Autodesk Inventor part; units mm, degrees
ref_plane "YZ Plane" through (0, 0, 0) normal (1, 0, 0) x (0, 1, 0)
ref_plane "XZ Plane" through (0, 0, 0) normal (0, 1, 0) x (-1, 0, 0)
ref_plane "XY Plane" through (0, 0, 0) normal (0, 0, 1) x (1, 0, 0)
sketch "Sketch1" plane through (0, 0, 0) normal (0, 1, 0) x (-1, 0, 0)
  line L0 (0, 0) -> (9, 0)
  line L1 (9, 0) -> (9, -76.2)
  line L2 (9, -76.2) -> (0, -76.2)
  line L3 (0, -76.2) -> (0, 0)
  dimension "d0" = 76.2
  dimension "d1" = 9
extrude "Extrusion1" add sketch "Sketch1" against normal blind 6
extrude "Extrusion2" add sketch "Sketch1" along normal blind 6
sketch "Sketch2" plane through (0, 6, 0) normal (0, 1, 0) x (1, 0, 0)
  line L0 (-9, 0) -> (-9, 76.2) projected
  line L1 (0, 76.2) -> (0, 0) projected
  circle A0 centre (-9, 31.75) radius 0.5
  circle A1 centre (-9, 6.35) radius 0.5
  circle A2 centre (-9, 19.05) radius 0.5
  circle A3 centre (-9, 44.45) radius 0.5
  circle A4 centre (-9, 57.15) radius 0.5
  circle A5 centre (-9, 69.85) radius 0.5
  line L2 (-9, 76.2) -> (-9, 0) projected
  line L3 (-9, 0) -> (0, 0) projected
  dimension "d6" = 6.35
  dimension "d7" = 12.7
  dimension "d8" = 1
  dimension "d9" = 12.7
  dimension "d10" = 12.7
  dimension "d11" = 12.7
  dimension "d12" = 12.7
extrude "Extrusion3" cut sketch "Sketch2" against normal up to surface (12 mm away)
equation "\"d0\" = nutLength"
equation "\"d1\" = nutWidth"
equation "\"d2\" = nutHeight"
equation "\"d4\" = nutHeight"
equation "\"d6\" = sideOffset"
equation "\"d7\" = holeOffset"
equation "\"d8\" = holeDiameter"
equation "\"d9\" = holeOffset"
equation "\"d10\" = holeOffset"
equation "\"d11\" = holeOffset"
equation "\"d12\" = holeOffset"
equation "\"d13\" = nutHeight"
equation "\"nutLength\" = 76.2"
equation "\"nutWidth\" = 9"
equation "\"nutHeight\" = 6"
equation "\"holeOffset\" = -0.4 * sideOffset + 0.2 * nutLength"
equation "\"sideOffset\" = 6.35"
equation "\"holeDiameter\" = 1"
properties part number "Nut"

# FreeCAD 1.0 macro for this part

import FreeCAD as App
import Part
import Sketcher

V = App.Vector

doc = App.newDocument("Part")
body = doc.addObject("PartDesign::Body", "Body")

sketch1 = body.newObject("Sketcher::SketchObject", "Sketch")
sketch1.AttachmentSupport = (doc.getObject("XZ_Plane"), [""])
sketch1.MapMode = "FlatFace"
sketch1.addGeometry([
    Part.LineSegment(V(-9, 0, 0), V(0, 0, 0)),
    Part.LineSegment(V(0, 0, 0), V(0, -76, 0)),
    Part.LineSegment(V(0, -76, 0), V(-9, -76, 0)),
    Part.LineSegment(V(-9, -76, 0), V(-9, 0, 0)),
], False)
sketch1.addConstraint([
    Sketcher.Constraint("Coincident", 0, 2, 1, 1),
    Sketcher.Constraint("Coincident", 1, 2, 2, 1),
    Sketcher.Constraint("Coincident", 2, 2, 3, 1),
    Sketcher.Constraint("Coincident", 3, 2, 0, 1),
    Sketcher.Constraint("Horizontal", 0),
    Sketcher.Constraint("Vertical", 1),
    Sketcher.Constraint("Horizontal", 2),
    Sketcher.Constraint("Vertical", 3),
    Sketcher.Constraint("Coincident", 0, 2, -1, 1),
    Sketcher.Constraint("DistanceX", 0, 1, 0, 2, 9.0),
    Sketcher.Constraint("DistanceY", 1, 2, 1, 1, 76.2),
])
pad1 = body.newObject("PartDesign::Pad", "Pad")
pad1.Profile = sketch1
pad1.Length = 6

sketch2 = body.newObject("Sketcher::SketchObject", "Sketch001")
sketch2.AttachmentSupport = (doc.getObject("XZ_Plane"), [""])
sketch2.MapMode = "FlatFace"
sketch2.addGeometry([
    Part.LineSegment(V(-9, 0, 0), V(0, 0, 0)),
    Part.LineSegment(V(0, 0, 0), V(0, -76, 0)),
    Part.LineSegment(V(0, -76, 0), V(-9, -76, 0)),
    Part.LineSegment(V(-9, -76, 0), V(-9, 0, 0)),
], False)
sketch2.addConstraint([
    Sketcher.Constraint("Coincident", 0, 2, 1, 1),
    Sketcher.Constraint("Coincident", 1, 2, 2, 1),
    Sketcher.Constraint("Coincident", 2, 2, 3, 1),
    Sketcher.Constraint("Coincident", 3, 2, 0, 1),
    Sketcher.Constraint("Horizontal", 0),
    Sketcher.Constraint("Vertical", 1),
    Sketcher.Constraint("Horizontal", 2),
    Sketcher.Constraint("Vertical", 3),
    Sketcher.Constraint("Coincident", 0, 2, -1, 1),
    Sketcher.Constraint("DistanceX", 0, 1, 0, 2, 9.0),
    Sketcher.Constraint("DistanceY", 1, 2, 1, 1, 76.2),
])
pad2 = body.newObject("PartDesign::Pad", "Pad001")
pad2.Profile = sketch2
pad2.Length = 6
pad2.Reversed = True

sketch3 = body.newObject("Sketcher::SketchObject", "Sketch002")
sketch3.AttachmentSupport = (doc.getObject("XZ_Plane"), [""])
sketch3.MapMode = "FlatFace"
sketch3.AttachmentOffset = App.Placement(V(0, 0, -6), App.Rotation())
sketch3.addGeometry([
    Part.Circle(V(-9, -6.3, 0), V(0, 0, 1), 0.5),
    Part.Circle(V(-9, -69.8, 0), V(0, 0, 1), 0.5),
    Part.Circle(V(-9, -57.1, 0), V(0, 0, 1), 0.5),
    Part.Circle(V(-9, -44.5, 0), V(0, 0, 1), 0.5),
    Part.Circle(V(-9, -31.8, 0), V(0, 0, 1), 0.5),
    Part.Circle(V(-9, -19.1, 0), V(0, 0, 1), 0.5),
], False)
sketch3.addConstraint([
    Sketcher.Constraint("Equal", 0, 1),
    Sketcher.Constraint("Equal", 1, 2),
    Sketcher.Constraint("Equal", 2, 3),
    Sketcher.Constraint("Equal", 3, 4),
    Sketcher.Constraint("Equal", 4, 5),
    Sketcher.Constraint("Vertical", 0, 3, 1, 3),
    Sketcher.Constraint("Vertical", 1, 3, 2, 3),
    Sketcher.Constraint("Vertical", 2, 3, 3, 3),
    Sketcher.Constraint("Vertical", 3, 3, 4, 3),
    Sketcher.Constraint("Vertical", 4, 3, 5, 3),
    Sketcher.Constraint("Diameter", 0, 1.0),
    Sketcher.Constraint("DistanceY", 1, 3, 2, 3, 12.7),
    Sketcher.Constraint("DistanceY", 2, 3, 3, 3, 12.7),
    Sketcher.Constraint("DistanceY", 3, 3, 4, 3, 12.7),
    Sketcher.Constraint("DistanceY", 4, 3, 5, 3, 12.7),
    Sketcher.Constraint("DistanceY", 5, 3, 0, 3, 12.7),
    Sketcher.Constraint("DistanceY", 0, 3, -1, 1, 6.35),
    Sketcher.Constraint("DistanceX", 0, 3, -1, 1, 9.0),
])
pocket1 = body.newObject("PartDesign::Pocket", "Pocket")
pocket1.Profile = sketch3
pocket1.Length = 12
pocket1.Reversed = True

doc.recompute()
